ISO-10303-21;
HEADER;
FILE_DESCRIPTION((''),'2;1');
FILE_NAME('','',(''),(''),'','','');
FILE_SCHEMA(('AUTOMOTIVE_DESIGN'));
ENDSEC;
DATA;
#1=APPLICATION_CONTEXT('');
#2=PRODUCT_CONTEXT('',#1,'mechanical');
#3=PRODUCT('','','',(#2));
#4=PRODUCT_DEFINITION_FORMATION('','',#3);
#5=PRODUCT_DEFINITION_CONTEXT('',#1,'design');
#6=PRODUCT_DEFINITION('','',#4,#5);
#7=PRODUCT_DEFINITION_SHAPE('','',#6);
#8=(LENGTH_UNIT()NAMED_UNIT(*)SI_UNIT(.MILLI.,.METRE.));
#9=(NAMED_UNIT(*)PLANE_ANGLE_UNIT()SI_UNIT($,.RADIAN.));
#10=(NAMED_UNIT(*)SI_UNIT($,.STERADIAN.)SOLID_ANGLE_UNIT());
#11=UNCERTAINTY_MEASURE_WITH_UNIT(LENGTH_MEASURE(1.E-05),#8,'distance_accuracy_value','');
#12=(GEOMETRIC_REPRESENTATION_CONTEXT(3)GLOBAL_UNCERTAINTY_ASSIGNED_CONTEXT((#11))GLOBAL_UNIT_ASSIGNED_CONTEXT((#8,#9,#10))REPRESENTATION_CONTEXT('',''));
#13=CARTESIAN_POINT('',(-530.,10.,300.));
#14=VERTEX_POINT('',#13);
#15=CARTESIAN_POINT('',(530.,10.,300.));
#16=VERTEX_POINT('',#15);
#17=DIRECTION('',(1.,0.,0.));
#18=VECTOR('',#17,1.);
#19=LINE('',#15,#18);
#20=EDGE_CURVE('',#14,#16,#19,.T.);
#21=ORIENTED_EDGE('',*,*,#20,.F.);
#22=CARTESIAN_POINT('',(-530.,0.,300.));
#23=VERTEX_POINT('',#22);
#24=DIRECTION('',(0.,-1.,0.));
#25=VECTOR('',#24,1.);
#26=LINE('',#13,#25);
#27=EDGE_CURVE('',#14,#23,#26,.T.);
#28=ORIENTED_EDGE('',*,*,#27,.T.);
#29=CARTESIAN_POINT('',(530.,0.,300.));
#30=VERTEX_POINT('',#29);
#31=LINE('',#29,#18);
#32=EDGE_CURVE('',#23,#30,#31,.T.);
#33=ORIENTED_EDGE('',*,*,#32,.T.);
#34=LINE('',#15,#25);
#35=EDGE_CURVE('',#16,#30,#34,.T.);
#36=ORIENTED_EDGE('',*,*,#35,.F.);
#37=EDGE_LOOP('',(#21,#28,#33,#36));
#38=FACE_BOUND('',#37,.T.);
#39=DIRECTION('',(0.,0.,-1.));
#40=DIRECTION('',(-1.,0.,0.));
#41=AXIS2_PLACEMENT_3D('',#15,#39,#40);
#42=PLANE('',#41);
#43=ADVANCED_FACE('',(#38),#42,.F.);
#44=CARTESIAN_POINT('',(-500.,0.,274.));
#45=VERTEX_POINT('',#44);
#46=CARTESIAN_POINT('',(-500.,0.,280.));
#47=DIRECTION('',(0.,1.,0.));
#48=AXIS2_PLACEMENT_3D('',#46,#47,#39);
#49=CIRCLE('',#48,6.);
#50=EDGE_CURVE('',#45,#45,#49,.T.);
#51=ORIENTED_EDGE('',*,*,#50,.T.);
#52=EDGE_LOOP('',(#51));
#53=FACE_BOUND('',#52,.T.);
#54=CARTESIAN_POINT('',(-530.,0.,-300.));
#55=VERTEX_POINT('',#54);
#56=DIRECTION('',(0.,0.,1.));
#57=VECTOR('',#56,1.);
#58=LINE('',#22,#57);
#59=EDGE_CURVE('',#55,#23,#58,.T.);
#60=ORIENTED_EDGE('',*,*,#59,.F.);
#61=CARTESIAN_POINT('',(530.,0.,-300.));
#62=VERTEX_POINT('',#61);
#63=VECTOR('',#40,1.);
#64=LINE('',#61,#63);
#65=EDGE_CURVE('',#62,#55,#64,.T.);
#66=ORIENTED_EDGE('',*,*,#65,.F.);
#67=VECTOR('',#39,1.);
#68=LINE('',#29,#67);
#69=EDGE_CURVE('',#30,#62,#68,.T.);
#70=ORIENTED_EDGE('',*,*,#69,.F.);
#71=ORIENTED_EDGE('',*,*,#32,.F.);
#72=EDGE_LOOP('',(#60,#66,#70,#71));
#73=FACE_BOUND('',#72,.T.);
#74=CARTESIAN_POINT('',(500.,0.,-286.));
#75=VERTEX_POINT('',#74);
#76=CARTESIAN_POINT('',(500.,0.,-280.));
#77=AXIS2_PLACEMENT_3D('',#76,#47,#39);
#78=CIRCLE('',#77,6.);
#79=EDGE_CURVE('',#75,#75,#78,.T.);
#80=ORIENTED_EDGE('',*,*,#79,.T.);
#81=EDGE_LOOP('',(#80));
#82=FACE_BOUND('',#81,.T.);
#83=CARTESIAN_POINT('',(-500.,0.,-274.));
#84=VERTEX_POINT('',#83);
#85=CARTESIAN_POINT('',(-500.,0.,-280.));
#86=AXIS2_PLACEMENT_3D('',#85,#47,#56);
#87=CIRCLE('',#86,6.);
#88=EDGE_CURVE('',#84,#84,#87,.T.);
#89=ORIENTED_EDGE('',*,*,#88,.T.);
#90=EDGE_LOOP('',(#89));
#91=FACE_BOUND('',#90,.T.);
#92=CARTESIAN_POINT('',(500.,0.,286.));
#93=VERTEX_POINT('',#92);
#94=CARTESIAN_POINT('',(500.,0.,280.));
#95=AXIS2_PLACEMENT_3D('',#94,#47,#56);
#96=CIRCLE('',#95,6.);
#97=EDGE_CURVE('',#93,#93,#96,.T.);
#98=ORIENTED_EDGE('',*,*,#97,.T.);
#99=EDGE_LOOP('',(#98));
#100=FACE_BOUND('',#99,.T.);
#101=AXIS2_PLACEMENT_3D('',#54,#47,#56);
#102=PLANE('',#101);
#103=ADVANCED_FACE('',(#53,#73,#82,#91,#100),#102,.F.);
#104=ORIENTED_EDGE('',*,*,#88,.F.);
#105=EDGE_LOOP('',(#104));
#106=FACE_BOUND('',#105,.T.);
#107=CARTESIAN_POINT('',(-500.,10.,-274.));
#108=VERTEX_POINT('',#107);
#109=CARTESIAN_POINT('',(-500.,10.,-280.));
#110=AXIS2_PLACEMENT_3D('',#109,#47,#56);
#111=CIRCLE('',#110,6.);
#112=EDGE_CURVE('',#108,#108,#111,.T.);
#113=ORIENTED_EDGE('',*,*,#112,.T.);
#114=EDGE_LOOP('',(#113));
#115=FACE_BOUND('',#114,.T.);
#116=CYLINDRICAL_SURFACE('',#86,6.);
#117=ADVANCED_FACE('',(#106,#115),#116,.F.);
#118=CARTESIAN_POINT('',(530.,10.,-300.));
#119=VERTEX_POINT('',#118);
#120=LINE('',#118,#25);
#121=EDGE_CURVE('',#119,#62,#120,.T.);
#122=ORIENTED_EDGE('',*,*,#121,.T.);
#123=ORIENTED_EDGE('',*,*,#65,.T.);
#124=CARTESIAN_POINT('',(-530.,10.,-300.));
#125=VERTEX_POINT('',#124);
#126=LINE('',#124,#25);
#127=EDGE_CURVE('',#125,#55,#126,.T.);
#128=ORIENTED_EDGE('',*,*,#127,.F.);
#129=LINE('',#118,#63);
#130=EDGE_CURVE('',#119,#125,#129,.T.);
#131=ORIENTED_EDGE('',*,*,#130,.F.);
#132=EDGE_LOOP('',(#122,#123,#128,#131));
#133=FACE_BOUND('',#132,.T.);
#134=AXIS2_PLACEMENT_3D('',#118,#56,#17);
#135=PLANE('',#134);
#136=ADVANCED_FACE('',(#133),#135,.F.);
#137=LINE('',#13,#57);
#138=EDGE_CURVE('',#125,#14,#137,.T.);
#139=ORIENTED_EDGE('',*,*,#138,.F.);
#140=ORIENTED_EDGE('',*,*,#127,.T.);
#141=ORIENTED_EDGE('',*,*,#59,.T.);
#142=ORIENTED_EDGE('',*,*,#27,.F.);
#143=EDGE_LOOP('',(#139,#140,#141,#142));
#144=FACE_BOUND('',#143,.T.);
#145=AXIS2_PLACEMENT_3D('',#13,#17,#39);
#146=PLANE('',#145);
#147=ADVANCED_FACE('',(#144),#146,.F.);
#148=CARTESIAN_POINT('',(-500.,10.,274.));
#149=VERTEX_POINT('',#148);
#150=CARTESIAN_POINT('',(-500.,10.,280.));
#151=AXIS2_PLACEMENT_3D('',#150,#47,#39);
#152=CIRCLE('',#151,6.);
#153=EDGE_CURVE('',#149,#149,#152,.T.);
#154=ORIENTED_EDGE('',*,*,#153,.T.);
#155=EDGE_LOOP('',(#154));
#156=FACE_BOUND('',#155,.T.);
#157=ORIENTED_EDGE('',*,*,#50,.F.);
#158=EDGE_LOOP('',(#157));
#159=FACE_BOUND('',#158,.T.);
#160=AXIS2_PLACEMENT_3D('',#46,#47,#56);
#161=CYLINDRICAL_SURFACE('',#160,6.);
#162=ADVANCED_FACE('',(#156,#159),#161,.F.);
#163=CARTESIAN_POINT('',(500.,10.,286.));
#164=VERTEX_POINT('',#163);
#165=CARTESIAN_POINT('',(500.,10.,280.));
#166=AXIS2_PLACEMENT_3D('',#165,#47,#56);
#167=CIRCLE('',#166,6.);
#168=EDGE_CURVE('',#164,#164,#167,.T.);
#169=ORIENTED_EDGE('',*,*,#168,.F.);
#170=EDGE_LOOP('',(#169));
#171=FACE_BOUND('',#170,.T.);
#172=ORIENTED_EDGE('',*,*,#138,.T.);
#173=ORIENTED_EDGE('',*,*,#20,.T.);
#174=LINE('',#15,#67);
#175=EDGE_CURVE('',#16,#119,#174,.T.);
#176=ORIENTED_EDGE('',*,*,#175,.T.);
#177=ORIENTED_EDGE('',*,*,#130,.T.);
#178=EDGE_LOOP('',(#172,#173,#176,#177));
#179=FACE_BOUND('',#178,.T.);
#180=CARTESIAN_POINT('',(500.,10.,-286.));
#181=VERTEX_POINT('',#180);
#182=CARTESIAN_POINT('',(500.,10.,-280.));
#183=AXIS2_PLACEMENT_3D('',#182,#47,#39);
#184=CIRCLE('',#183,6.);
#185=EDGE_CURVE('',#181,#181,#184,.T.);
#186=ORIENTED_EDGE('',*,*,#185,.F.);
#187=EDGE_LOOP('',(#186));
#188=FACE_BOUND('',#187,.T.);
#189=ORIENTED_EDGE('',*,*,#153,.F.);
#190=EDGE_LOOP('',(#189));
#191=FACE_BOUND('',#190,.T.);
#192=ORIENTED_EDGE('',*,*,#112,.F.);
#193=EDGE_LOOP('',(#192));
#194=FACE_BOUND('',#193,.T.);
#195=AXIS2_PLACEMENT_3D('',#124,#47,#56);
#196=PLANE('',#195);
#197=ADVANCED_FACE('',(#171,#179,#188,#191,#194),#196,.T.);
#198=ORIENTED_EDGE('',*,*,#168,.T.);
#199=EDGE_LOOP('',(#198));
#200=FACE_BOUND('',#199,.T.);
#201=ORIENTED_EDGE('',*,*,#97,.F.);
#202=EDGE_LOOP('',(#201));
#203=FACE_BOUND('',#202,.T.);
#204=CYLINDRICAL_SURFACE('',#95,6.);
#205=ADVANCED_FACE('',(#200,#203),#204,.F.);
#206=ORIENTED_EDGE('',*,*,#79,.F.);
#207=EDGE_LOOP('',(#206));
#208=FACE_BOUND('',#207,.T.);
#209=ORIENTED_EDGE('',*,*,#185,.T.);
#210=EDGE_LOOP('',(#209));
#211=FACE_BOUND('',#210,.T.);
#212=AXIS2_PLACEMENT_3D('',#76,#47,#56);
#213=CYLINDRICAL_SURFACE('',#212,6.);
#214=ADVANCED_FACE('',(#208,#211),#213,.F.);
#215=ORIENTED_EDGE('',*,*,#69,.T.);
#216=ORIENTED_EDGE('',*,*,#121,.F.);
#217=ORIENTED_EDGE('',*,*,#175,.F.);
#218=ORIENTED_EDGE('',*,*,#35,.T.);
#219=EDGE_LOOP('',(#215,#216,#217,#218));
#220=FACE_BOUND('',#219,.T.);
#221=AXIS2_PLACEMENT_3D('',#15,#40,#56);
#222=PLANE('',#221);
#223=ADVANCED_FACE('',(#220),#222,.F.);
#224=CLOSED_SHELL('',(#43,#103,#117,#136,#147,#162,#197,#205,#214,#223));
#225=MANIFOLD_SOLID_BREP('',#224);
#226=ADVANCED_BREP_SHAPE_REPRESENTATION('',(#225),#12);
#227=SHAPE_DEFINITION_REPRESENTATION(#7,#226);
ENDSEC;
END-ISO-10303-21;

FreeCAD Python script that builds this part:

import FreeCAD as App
import Part
import Sketcher
from FreeCAD import Vector
Q = App.Units.Quantity


def add_polygon(sketch, points):
    """Adds a closed chain of lines whose ends are joined by coincident constraints."""
    first, n = sketch.GeometryCount, len(points)
    for a, b in zip(points, points[1:] + points[:1]):
        sketch.addGeometry(Part.LineSegment(App.Vector(*a, 0), App.Vector(*b, 0)), False)
    for i in range(n):
        sketch.addConstraint(Sketcher.Constraint("Coincident", first + i, 2, first + (i + 1) % n, 1))

doc = App.newDocument("Part")
body = doc.addObject("PartDesign::Body", "Body")

# Sketch on XZ plane
sketch1 = body.newObject("Sketcher::SketchObject", "Sketch")
sketch1.AttachmentSupport = (doc.getObject("XZ_Plane"), [""])
sketch1.MapMode = "FlatFace"
add_polygon(sketch1, [(-530, -300), (-530, 300), (530, 300), (530, -300)])  # lines 0-3
sketch1.addConstraint(Sketcher.Constraint("Vertical", 0))
sketch1.addConstraint(Sketcher.Constraint("Horizontal", 1))
sketch1.addConstraint(Sketcher.Constraint("Vertical", 2))
sketch1.addConstraint(Sketcher.Constraint("Horizontal", 3))
sketch1.addConstraint(Sketcher.Constraint("Symmetric", 0, 2, 2, 2, -1, 1))
sketch1.addConstraint(Sketcher.Constraint("DistanceX", 1, 1, 1, 2, Q("1060 mm")))
sketch1.addConstraint(Sketcher.Constraint("DistanceY", 0, 1, 0, 2, Q("600 mm")))
pad1 = body.newObject("PartDesign::Pad", "Pad")
pad1.Profile = sketch1
pad1.Length = 10
pad1.Reversed = True

# Sketch on XZ plane
sketch2 = body.newObject("Sketcher::SketchObject", "Sketch001")
sketch2.AttachmentSupport = (doc.getObject("XZ_Plane"), [""])
sketch2.MapMode = "FlatFace"
sketch2.AttachmentOffset = App.Placement(Vector(0, 0, -10), App.Rotation())
sketch2.addGeometry(Part.Circle(Vector(-500, -280, 0), Vector(0, 0, 1), 6), False)
sketch2.addGeometry(Part.Circle(Vector(500, -280, 0), Vector(0, 0, 1), 6), False)
sketch2.addGeometry(Part.Circle(Vector(500, 280, 0), Vector(0, 0, 1), 6), False)
sketch2.addGeometry(Part.Circle(Vector(-500, 280, 0), Vector(0, 0, 1), 6), False)
sketch2.addConstraint(Sketcher.Constraint("Equal", 0, 1))
sketch2.addConstraint(Sketcher.Constraint("Equal", 1, 2))
sketch2.addConstraint(Sketcher.Constraint("Equal", 2, 3))
sketch2.addConstraint(Sketcher.Constraint("Symmetric", 0, 3, 2, 3, -1, 1))
sketch2.addConstraint(Sketcher.Constraint("Symmetric", 1, 3, 3, 3, -1, 1))
sketch2.addConstraint(Sketcher.Constraint("Symmetric", 0, 3, 1, 3, -2))
sketch2.addConstraint(Sketcher.Constraint("Diameter", 0, Q("12 mm")))
sketch2.addConstraint(Sketcher.Constraint("DistanceX", 0, 3, -1, 1, Q("500 mm")))
sketch2.addConstraint(Sketcher.Constraint("DistanceY", 0, 3, -1, 1, Q("280 mm")))
pocket1 = body.newObject("PartDesign::Pocket", "Pocket")
pocket1.Profile = sketch2
pocket1.Type = "ThroughAll"
pocket1.Reversed = True

doc.recompute()
